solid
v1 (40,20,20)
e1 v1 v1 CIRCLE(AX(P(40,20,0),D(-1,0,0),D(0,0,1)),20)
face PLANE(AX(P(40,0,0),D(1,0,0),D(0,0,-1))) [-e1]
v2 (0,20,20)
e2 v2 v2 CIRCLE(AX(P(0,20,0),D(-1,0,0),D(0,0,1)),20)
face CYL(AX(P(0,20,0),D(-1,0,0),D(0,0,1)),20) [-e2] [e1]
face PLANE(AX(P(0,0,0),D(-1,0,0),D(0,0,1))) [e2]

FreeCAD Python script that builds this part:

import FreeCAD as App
import Part
import Sketcher

doc = App.newDocument("Part")
body = doc.addObject("PartDesign::Body", "Body")

# Sketch on XY plane
sketch1 = doc.addObject("Sketcher::SketchObject", "Sketch")
body.addObject(sketch1)
sketch1.AttachmentSupport = (doc.XY_Plane, [""])
sketch1.MapMode = "FlatFace"
sketch1.addGeometry(Part.LineSegment(App.Vector(0, 20, 0), App.Vector(0, 0, 0)), False)
sketch1.addGeometry(Part.LineSegment(App.Vector(0, 0, 0), App.Vector(40, 0, 0)), False)
sketch1.addGeometry(Part.LineSegment(App.Vector(40, 0, 0), App.Vector(40, 20, 0)), False)
sketch1.addGeometry(Part.LineSegment(App.Vector(40, 20, 0), App.Vector(0, 20, 0)), False)
sketch1.addGeometry(Part.LineSegment(App.Vector(0, 20, 0), App.Vector(40, 20, 0)), True)  # axis
sketch1.addConstraint(Sketcher.Constraint("Coincident", 0, 2, 1, 1))
sketch1.addConstraint(Sketcher.Constraint("Coincident", 1, 2, 2, 1))
sketch1.addConstraint(Sketcher.Constraint("Coincident", 2, 2, 3, 1))
sketch1.addConstraint(Sketcher.Constraint("Coincident", 3, 2, 0, 1))
sketch1.addConstraint(Sketcher.Constraint("Vertical", 0))
sketch1.addConstraint(Sketcher.Constraint("Horizontal", 1))
sketch1.addConstraint(Sketcher.Constraint("Vertical", 2))
sketch1.addConstraint(Sketcher.Constraint("Horizontal", 3))
sketch1.addConstraint(Sketcher.Constraint("Horizontal", 4))
sketch1.addConstraint(Sketcher.Constraint("Coincident", 0, 2, -1, 1))
sketch1.addConstraint(Sketcher.Constraint("Coincident", 4, 1, 3, 2))
sketch1.addConstraint(Sketcher.Constraint("Vertical", 1, 2, 4, 2))
sketch1.addConstraint(Sketcher.Constraint("DistanceX", 1, 1, 1, 2, 40.0))
sketch1.addConstraint(Sketcher.Constraint("DistanceY", 0, 2, 0, 1, 20.0))
revolution = doc.addObject("PartDesign::Revolution", "Revolution")
body.addObject(revolution)
revolution.Profile = sketch1
revolution.ReferenceAxis = (sketch1, ["Axis0"])
revolution.Angle = 360

doc.recompute()
